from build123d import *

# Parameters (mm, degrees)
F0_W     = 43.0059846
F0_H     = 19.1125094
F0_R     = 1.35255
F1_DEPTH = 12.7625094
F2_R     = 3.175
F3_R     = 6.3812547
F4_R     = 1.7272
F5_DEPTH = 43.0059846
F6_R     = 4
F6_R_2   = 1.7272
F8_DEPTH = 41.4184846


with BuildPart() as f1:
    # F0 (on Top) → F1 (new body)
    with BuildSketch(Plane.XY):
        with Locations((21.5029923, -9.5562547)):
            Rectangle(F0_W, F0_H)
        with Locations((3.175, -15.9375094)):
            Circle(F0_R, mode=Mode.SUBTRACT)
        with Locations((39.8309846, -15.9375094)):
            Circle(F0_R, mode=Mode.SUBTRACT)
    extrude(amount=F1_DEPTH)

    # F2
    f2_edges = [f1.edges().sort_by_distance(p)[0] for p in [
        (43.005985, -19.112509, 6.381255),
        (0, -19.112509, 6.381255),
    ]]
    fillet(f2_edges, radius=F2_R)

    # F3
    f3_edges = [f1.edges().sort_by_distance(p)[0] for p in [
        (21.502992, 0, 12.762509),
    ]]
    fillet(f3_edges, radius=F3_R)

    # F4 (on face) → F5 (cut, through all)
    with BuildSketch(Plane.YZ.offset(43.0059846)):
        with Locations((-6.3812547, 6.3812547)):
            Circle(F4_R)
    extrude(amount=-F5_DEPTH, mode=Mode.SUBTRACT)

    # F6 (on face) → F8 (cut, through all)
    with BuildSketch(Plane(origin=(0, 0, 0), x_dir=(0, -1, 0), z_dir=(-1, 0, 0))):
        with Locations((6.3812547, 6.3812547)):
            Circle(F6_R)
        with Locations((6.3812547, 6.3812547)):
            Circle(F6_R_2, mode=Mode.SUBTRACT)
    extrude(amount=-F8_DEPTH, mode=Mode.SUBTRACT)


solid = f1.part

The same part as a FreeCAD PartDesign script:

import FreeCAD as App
import Part
import Sketcher
Q = App.Units.Quantity


def edges_at(feature, points):
    """Names of the edges that pass closest to the given points."""
    edges = feature.Shape.Edges
    near = lambda p: min(range(len(edges)), key=lambda i: edges[i].distToShape(Part.Vertex(*p))[0])
    return sorted({f"Edge{near(p) + 1}" for p in points})


def add_polygon(sketch, points):
    """Adds a closed chain of lines whose ends are joined by coincident constraints."""
    first, n = sketch.GeometryCount, len(points)
    for a, b in zip(points, points[1:] + points[:1]):
        sketch.addGeometry(Part.LineSegment(App.Vector(*a, 0), App.Vector(*b, 0)), False)
    for i in range(n):
        sketch.addConstraint(Sketcher.Constraint("Coincident", first + i, 2, first + (i + 1) % n, 1))

doc = App.newDocument("Part")
body = doc.addObject("PartDesign::Body", "Body")

# Sketch on XY plane
sketch1 = body.newObject("Sketcher::SketchObject", "Sketch")
sketch1.AttachmentSupport = (doc.getObject("XY_Plane"), [""])
sketch1.MapMode = "FlatFace"
add_polygon(sketch1, [(0, 0), (0, -19.1), (43, -19.1), (43, 0)])  # lines 0-3
sketch1.addGeometry(Part.Circle(App.Vector(3.2, -15.9, 0), App.Vector(0, 0, 1), 1.4), False)  # 4
sketch1.addGeometry(Part.Circle(App.Vector(39.8, -15.9, 0), App.Vector(0, 0, 1), 1.4), False)  # 5
sketch1.addConstraint(Sketcher.Constraint("Vertical", 0))
sketch1.addConstraint(Sketcher.Constraint("Horizontal", 1))
sketch1.addConstraint(Sketcher.Constraint("Vertical", 2))
sketch1.addConstraint(Sketcher.Constraint("Horizontal", 3))
sketch1.addConstraint(Sketcher.Constraint("Coincident", 3, 2, -1, 1))
sketch1.addConstraint(Sketcher.Constraint("Equal", 4, 5))
sketch1.addConstraint(Sketcher.Constraint("Horizontal", 4, 3, 5, 3))
sketch1.addConstraint(Sketcher.Constraint("Diameter", 4, Q("0.1065 in")))
sketch1.addConstraint(Sketcher.Constraint("DistanceX", -1, 1, 4, 3, Q("0.125 in")))
sketch1.addConstraint(Sketcher.Constraint("DistanceY", 0, 2, 4, 3, Q("0.125 in")))
sketch1.addConstraint(Sketcher.Constraint("DistanceX", 5, 3, 1, 2, Q("0.125 in")))
sketch1.addConstraint(Sketcher.Constraint("DistanceY", 0, 2, 0, 1, Q("19.112509 mm")))
sketch1.addConstraint(Sketcher.Constraint("DistanceX", 1, 1, 1, 2, Q("43.005985 mm")))
pad1 = body.newObject("PartDesign::Pad", "Pad")
pad1.Profile = sketch1
pad1.Length = 12.762509
doc.recompute()

fillet = body.newObject("PartDesign::Fillet", "Fillet")
fillet.Base = (pad1, edges_at(pad1, [(43.006, -19.113, 6.381), (0, -19.113, 6.381)]))
fillet.Radius = Q("0.125 in")
doc.recompute()

fillet2 = body.newObject("PartDesign::Fillet", "Fillet001")
fillet2.Base = (fillet, edges_at(fillet, [(21.503, 0, 12.763)]))
fillet2.Radius = 6.381255

# Sketch on YZ plane
sketch2 = body.newObject("Sketcher::SketchObject", "Sketch001")
sketch2.AttachmentSupport = (doc.getObject("YZ_Plane"), [""])
sketch2.MapMode = "FlatFace"
sketch2.AttachmentOffset = App.Placement(App.Vector(0, 0, 43.005985), App.Rotation())
sketch2.addGeometry(Part.Circle(App.Vector(-6.4, 6.4, 0), App.Vector(0, 0, 1), 1.7), False)
sketch2.addConstraint(Sketcher.Constraint("Diameter", 0, Q("0.136 in")))
sketch2.addConstraint(Sketcher.Constraint("DistanceX", 0, 3, -1, 1, Q("6.381255 mm")))
sketch2.addConstraint(Sketcher.Constraint("DistanceY", -1, 1, 0, 3, Q("6.381255 mm")))
pocket1 = body.newObject("PartDesign::Pocket", "Pocket")
pocket1.Profile = sketch2
pocket1.Type = "ThroughAll"

# Sketch on YZ plane
sketch3 = body.newObject("Sketcher::SketchObject", "Sketch002")
sketch3.AttachmentSupport = (doc.getObject("YZ_Plane"), [""])
sketch3.MapMode = "FlatFace"
sketch3.addGeometry(Part.Circle(App.Vector(-6.4, 6.4, 0), App.Vector(0, 0, 1), 4), False)
sketch3.addGeometry(Part.Circle(App.Vector(-6.4, 6.4, 0), App.Vector(0, 0, 1), 1.7), False)
sketch3.addConstraint(Sketcher.Constraint("Coincident", 1, 3, 0, 3))
sketch3.addConstraint(Sketcher.Constraint("Diameter", 1, Q("0.136 in")))
sketch3.addConstraint(Sketcher.Constraint("Diameter", 0, Q("8 mm")))
sketch3.addConstraint(Sketcher.Constraint("DistanceX", 0, 3, -1, 1, Q("6.381255 mm")))
sketch3.addConstraint(Sketcher.Constraint("DistanceY", -1, 1, 0, 3, Q("6.381255 mm")))
pocket2 = body.newObject("PartDesign::Pocket", "Pocket001")
pocket2.Profile = sketch3
pocket2.Length = 41.418485
pocket2.Reversed = True

doc.recompute()
